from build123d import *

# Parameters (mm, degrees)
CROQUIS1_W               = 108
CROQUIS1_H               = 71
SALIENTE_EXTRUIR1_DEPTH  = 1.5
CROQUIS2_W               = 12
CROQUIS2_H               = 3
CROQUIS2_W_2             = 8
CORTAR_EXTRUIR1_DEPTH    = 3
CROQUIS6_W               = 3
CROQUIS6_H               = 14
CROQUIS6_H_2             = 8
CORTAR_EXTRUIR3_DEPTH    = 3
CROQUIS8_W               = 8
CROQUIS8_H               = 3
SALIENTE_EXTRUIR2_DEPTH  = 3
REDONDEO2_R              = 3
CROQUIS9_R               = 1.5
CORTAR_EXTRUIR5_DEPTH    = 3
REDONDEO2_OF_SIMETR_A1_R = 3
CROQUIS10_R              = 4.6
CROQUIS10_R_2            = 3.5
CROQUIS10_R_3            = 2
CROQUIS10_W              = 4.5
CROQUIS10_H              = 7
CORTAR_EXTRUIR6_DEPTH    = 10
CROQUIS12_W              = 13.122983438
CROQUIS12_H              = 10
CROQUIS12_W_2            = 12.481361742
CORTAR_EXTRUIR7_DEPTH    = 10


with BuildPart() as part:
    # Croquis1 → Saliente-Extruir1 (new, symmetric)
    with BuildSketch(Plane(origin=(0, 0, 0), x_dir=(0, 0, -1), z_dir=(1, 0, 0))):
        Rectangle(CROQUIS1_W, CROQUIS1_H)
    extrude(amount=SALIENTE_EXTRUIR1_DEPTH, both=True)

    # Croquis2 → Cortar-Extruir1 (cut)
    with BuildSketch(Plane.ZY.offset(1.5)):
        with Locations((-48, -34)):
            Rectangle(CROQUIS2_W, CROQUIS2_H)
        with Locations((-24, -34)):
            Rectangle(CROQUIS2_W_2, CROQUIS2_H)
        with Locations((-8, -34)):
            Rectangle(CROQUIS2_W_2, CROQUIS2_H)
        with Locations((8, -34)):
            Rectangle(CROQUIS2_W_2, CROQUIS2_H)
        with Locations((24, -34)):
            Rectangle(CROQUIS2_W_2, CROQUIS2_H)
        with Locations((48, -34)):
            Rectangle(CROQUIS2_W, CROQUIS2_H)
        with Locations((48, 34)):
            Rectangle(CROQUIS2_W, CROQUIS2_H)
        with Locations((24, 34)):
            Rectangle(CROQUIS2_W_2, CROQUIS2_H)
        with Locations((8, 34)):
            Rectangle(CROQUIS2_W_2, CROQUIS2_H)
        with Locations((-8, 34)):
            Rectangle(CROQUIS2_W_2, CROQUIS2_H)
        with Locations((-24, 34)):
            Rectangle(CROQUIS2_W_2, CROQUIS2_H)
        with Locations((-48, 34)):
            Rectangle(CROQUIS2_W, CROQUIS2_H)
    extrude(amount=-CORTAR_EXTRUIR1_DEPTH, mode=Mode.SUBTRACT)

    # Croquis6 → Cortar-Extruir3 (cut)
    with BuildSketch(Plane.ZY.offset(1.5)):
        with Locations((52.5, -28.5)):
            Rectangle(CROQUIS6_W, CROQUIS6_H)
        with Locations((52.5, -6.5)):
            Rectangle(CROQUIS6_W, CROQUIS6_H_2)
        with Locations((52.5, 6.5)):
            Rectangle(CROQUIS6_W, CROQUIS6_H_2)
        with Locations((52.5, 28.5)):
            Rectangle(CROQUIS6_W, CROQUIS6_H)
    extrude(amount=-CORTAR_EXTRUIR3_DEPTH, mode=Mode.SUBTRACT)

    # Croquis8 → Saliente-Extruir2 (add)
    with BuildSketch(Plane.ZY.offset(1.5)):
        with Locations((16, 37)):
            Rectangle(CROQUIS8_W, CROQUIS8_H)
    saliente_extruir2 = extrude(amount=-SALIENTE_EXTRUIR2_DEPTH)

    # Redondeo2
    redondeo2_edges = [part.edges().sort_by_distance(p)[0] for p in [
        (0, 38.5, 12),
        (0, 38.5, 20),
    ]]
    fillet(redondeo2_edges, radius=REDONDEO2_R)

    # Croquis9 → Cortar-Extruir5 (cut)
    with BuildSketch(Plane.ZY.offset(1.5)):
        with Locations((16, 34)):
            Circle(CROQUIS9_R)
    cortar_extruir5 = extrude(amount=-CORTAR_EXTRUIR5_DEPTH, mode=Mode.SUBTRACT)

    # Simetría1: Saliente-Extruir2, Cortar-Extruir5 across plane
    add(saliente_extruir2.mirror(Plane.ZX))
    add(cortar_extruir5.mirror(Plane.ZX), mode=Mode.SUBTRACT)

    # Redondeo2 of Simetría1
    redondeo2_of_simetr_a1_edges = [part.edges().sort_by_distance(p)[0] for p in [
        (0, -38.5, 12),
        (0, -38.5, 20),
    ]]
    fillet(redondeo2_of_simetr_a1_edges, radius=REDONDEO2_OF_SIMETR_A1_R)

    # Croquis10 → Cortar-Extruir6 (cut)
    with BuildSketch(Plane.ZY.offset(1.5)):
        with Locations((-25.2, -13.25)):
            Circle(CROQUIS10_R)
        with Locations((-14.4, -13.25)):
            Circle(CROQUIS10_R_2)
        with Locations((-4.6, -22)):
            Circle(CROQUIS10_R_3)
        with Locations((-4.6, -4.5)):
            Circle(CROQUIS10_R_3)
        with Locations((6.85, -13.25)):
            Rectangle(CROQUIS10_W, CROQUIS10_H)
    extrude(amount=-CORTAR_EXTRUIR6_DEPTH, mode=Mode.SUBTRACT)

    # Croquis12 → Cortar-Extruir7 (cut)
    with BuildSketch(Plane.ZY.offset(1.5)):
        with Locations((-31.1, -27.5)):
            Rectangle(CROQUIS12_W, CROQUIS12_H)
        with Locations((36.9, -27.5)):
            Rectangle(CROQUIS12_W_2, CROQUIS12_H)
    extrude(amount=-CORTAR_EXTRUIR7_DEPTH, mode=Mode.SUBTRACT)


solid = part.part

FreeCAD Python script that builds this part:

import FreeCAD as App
import Part
import Sketcher
from FreeCAD import Vector


def edges_at(feature, points):
    """Names of the edges that pass closest to the given points."""
    edges = feature.Shape.Edges
    near = lambda p: min(range(len(edges)), key=lambda i: edges[i].distToShape(Part.Vertex(*p))[0])
    return sorted({f"Edge{near(p) + 1}" for p in points})


def add_polygon(sketch, points):
    """Adds a closed chain of lines whose ends are joined by coincident constraints."""
    first, n = sketch.GeometryCount, len(points)
    for a, b in zip(points, points[1:] + points[:1]):
        sketch.addGeometry(Part.LineSegment(App.Vector(*a, 0), App.Vector(*b, 0)), False)
    for i in range(n):
        sketch.addConstraint(Sketcher.Constraint("Coincident", first + i, 2, first + (i + 1) % n, 1))

doc = App.newDocument("Part")
body = doc.addObject("PartDesign::Body", "Body")

sketch1 = doc.addObject("Sketcher::SketchObject", "Sketch")
body.addObject(sketch1)
sketch1.AttachmentSupport = (doc.YZ_Plane, [""])
sketch1.MapMode = "FlatFace"
add_polygon(sketch1, [(36, 54), (-36, 54), (-36, -54), (36, -54)])
sketch1.addConstraint([
    Sketcher.Constraint("Horizontal", 0),
    Sketcher.Constraint("Vertical", 1),
    Sketcher.Constraint("Horizontal", 2),
    Sketcher.Constraint("Vertical", 3),
    Sketcher.Constraint("Symmetric", 0, 2, 2, 2, -1, 1),
    Sketcher.Constraint("DistanceX", 0, 2, 0, 1, 71.0),
    Sketcher.Constraint("DistanceY", 1, 2, 1, 1, 108.0),
])
pad1 = doc.addObject("PartDesign::Pad", "Pad")
body.addObject(pad1)
pad1.Profile = sketch1
pad1.Length = 3
pad1.Midplane = True

sketch2 = doc.addObject("Sketcher::SketchObject", "Sketch001")
body.addObject(sketch2)
sketch2.AttachmentSupport = (doc.YZ_Plane, [""])
sketch2.MapMode = "FlatFace"
sketch2.AttachmentOffset = App.Placement(Vector(0, 0, -1.5), App.Rotation())
add_polygon(sketch2, [(-32.5, -54), (-35.5, -54), (-35.5, -42), (-32.5, -42)])
add_polygon(sketch2, [(-32.5, -28), (-35.5, -28), (-35.5, -20), (-32.5, -20)])
add_polygon(sketch2, [(-32.5, -12), (-35.5, -12), (-35.5, -4), (-32.5, -4)])
add_polygon(sketch2, [(-32.5, 4), (-35.5, 4), (-35.5, 12), (-32.5, 12)])
add_polygon(sketch2, [(-32.5, 20), (-35.5, 20), (-35.5, 28), (-32.5, 28)])
add_polygon(sketch2, [(-32.5, 42), (-35.5, 42), (-35.5, 54), (-32.5, 54)])
add_polygon(sketch2, [(35.5, 42), (32.5, 42), (32.5, 54), (35.5, 54)])
add_polygon(sketch2, [(35.5, 20), (32.5, 20), (32.5, 28), (35.5, 28)])
add_polygon(sketch2, [(35.5, 4), (32.5, 4), (32.5, 12), (35.5, 12)])
add_polygon(sketch2, [(35.5, -12), (32.5, -12), (32.5, -4), (35.5, -4)])
add_polygon(sketch2, [(35.5, -28), (32.5, -28), (32.5, -20), (35.5, -20)])
add_polygon(sketch2, [(35.5, -54), (32.5, -54), (32.5, -42), (35.5, -42)])
sketch2.addConstraint([
    Sketcher.Constraint("Horizontal", 0),
    Sketcher.Constraint("Vertical", 1),
    Sketcher.Constraint("Horizontal", 2),
    Sketcher.Constraint("Vertical", 3),
    Sketcher.Constraint("Horizontal", 4),
    Sketcher.Constraint("Vertical", 5),
    Sketcher.Constraint("Horizontal", 6),
    Sketcher.Constraint("Vertical", 7),
    Sketcher.Constraint("Horizontal", 8),
    Sketcher.Constraint("Vertical", 9),
    Sketcher.Constraint("Horizontal", 10),
    Sketcher.Constraint("Vertical", 11),
    Sketcher.Constraint("Horizontal", 12),
    Sketcher.Constraint("Vertical", 13),
    Sketcher.Constraint("Horizontal", 14),
    Sketcher.Constraint("Vertical", 15),
    Sketcher.Constraint("Horizontal", 16),
    Sketcher.Constraint("Vertical", 17),
    Sketcher.Constraint("Horizontal", 18),
    Sketcher.Constraint("Vertical", 19),
    Sketcher.Constraint("Horizontal", 20),
    Sketcher.Constraint("Vertical", 21),
    Sketcher.Constraint("Horizontal", 22),
    Sketcher.Constraint("Vertical", 23),
    Sketcher.Constraint("Horizontal", 24),
    Sketcher.Constraint("Vertical", 25),
    Sketcher.Constraint("Horizontal", 26),
    Sketcher.Constraint("Vertical", 27),
    Sketcher.Constraint("Horizontal", 28),
    Sketcher.Constraint("Vertical", 29),
    Sketcher.Constraint("Horizontal", 30),
    Sketcher.Constraint("Vertical", 31),
    Sketcher.Constraint("Horizontal", 32),
    Sketcher.Constraint("Vertical", 33),
    Sketcher.Constraint("Horizontal", 34),
    Sketcher.Constraint("Vertical", 35),
    Sketcher.Constraint("Horizontal", 36),
    Sketcher.Constraint("Vertical", 37),
    Sketcher.Constraint("Horizontal", 38),
    Sketcher.Constraint("Vertical", 39),
    Sketcher.Constraint("Horizontal", 40),
    Sketcher.Constraint("Vertical", 41),
    Sketcher.Constraint("Horizontal", 42),
    Sketcher.Constraint("Vertical", 43),
    Sketcher.Constraint("Horizontal", 44),
    Sketcher.Constraint("Vertical", 45),
    Sketcher.Constraint("Horizontal", 46),
    Sketcher.Constraint("Vertical", 47),
    Sketcher.Constraint("Symmetric", 2, 2, 24, 2, -1, 1),
    Sketcher.Constraint("Symmetric", 0, 2, 26, 2, -1, 1),
    Sketcher.Constraint("Symmetric", 6, 2, 28, 2, -1, 1),
    Sketcher.Constraint("Symmetric", 4, 2, 30, 2, -1, 1),
    Sketcher.Constraint("Symmetric", 10, 2, 32, 2, -1, 1),
    Sketcher.Constraint("Symmetric", 8, 2, 34, 2, -1, 1),
    Sketcher.Constraint("Symmetric", 14, 2, 36, 2, -1, 1),
    Sketcher.Constraint("Symmetric", 12, 2, 38, 2, -1, 1),
    Sketcher.Constraint("Symmetric", 18, 2, 40, 2, -1, 1),
    Sketcher.Constraint("Symmetric", 16, 2, 42, 2, -1, 1),
    Sketcher.Constraint("Symmetric", 22, 2, 44, 2, -1, 1),
    Sketcher.Constraint("Symmetric", 20, 2, 46, 2, -1, 1),
    Sketcher.Constraint("Symmetric", 23, 2, 24, 2, -2),
    Sketcher.Constraint("Symmetric", 21, 2, 26, 2, -2),
    Sketcher.Constraint("Symmetric", 19, 2, 28, 2, -2),
    Sketcher.Constraint("Symmetric", 17, 2, 30, 2, -2),
    Sketcher.Constraint("Symmetric", 15, 2, 32, 2, -2),
    Sketcher.Constraint("Symmetric", 13, 2, 34, 2, -2),
    Sketcher.Constraint("Vertical", 1, 2, 4, 2),
    Sketcher.Constraint("Vertical", 3, 2, 6, 2),
    Sketcher.Constraint("Vertical", 5, 2, 8, 2),
    Sketcher.Constraint("Vertical", 7, 2, 10, 2),
    Sketcher.Constraint("Equal", 7, 9),
    Sketcher.Constraint("DistanceX", 0, 2, 0, 1, 3.0),
    Sketcher.Constraint("DistanceY", 1, 1, 1, 2, 12.0),
    Sketcher.Constraint("DistanceY", 5, 1, 5, 2, 8.0),
    Sketcher.Constraint("DistanceY", 0, 2, -1, 1, 54.0),
    Sketcher.Constraint("DistanceY", 4, 2, -1, 1, 28.0),
    Sketcher.Constraint("DistanceY", 8, 2, -1, 1, 12.0),
    Sketcher.Constraint("DistanceX", 23, 2, 24, 2, 65.0),
])
pocket1 = doc.addObject("PartDesign::Pocket", "Pocket")
body.addObject(pocket1)
pocket1.Profile = sketch2
pocket1.Length = 3
pocket1.Reversed = True

sketch3 = doc.addObject("Sketcher::SketchObject", "Sketch002")
body.addObject(sketch3)
sketch3.AttachmentSupport = (doc.YZ_Plane, [""])
sketch3.MapMode = "FlatFace"
sketch3.AttachmentOffset = App.Placement(Vector(0, 0, -1.5), App.Rotation())
add_polygon(sketch3, [(-21.5, 51), (-35.5, 51), (-35.5, 54), (-21.5, 54)])
add_polygon(sketch3, [(-2.5, 51), (-10.5, 51), (-10.5, 54), (-2.5, 54)])
add_polygon(sketch3, [(10.5, 51), (2.5, 51), (2.5, 54), (10.5, 54)])
add_polygon(sketch3, [(35.5, 51), (21.5, 51), (21.5, 54), (35.5, 54)])
sketch3.addConstraint([
    Sketcher.Constraint("Horizontal", 0),
    Sketcher.Constraint("Vertical", 1),
    Sketcher.Constraint("Horizontal", 2),
    Sketcher.Constraint("Vertical", 3),
    Sketcher.Constraint("Horizontal", 4),
    Sketcher.Constraint("Vertical", 5),
    Sketcher.Constraint("Horizontal", 6),
    Sketcher.Constraint("Vertical", 7),
    Sketcher.Constraint("Horizontal", 8),
    Sketcher.Constraint("Vertical", 9),
    Sketcher.Constraint("Horizontal", 10),
    Sketcher.Constraint("Vertical", 11),
    Sketcher.Constraint("Horizontal", 12),
    Sketcher.Constraint("Vertical", 13),
    Sketcher.Constraint("Horizontal", 14),
    Sketcher.Constraint("Vertical", 15),
    Sketcher.Constraint("Symmetric", 7, 2, 8, 2, -2),
    Sketcher.Constraint("Symmetric", 5, 2, 10, 2, -2),
    Sketcher.Constraint("Symmetric", 3, 2, 12, 2, -2),
    Sketcher.Constraint("Symmetric", 1, 2, 14, 2, -2),
    Sketcher.Constraint("Horizontal", 3, 2, 4, 2),
    Sketcher.Constraint("Horizontal", 2, 2, 5, 2),
    Sketcher.Constraint("DistanceX", 0, 2, 0, 1, 14.0),
    Sketcher.Constraint("DistanceX", 4, 2, 4, 1, 8.0),
    Sketcher.Constraint("DistanceY", 1, 1, 1, 2, 3.0),
    Sketcher.Constraint("DistanceY", -1, 1, 0, 2, 51.0),
    Sketcher.Constraint("DistanceX", 3, 2, 4, 2, 11.0),
    Sketcher.Constraint("DistanceX", 7, 2, 8, 2, 5.0),
])
pocket2 = doc.addObject("PartDesign::Pocket", "Pocket001")
body.addObject(pocket2)
pocket2.Profile = sketch3
pocket2.Length = 3
pocket2.Reversed = True

sketch4 = doc.addObject("Sketcher::SketchObject", "Sketch003")
body.addObject(sketch4)
sketch4.AttachmentSupport = (doc.YZ_Plane, [""])
sketch4.MapMode = "FlatFace"
sketch4.AttachmentOffset = App.Placement(Vector(0, 0, -1.5), App.Rotation())
add_polygon(sketch4, [(38.5, 12), (35.5, 12), (35.5, 20), (38.5, 20)])
sketch4.addConstraint([
    Sketcher.Constraint("Horizontal", 0),
    Sketcher.Constraint("Vertical", 1),
    Sketcher.Constraint("Horizontal", 2),
    Sketcher.Constraint("Vertical", 3),
    Sketcher.Constraint("DistanceX", 0, 2, 0, 1, 3.0),
    Sketcher.Constraint("DistanceY", 1, 1, 1, 2, 8.0),
    Sketcher.Constraint("DistanceY", -1, 1, 0, 2, 12.0),
    Sketcher.Constraint("DistanceX", -1, 1, 0, 2, 35.5),
])
pad2 = doc.addObject("PartDesign::Pad", "Pad001")
body.addObject(pad2)
pad2.Profile = sketch4
pad2.Length = 3
doc.recompute()

fillet = doc.addObject("PartDesign::Fillet", "Fillet")
body.addObject(fillet)
fillet.Base = (pad2, edges_at(pad2, [(0, 38.5, 12), (0, 38.5, 20)]))
fillet.Radius = 3

sketch5 = doc.addObject("Sketcher::SketchObject", "Sketch004")
body.addObject(sketch5)
sketch5.AttachmentSupport = (doc.YZ_Plane, [""])
sketch5.MapMode = "FlatFace"
sketch5.AttachmentOffset = App.Placement(Vector(0, 0, -1.5), App.Rotation())
sketch5.addGeometry(Part.Circle(Vector(34, 16, 0), Vector(0, 0, 1), 1.5), False)
sketch5.addConstraint([
    Sketcher.Constraint("Diameter", 0, 3.0),
    Sketcher.Constraint("DistanceX", -1, 1, 0, 3, 34.0),
    Sketcher.Constraint("DistanceY", -1, 1, 0, 3, 16.0),
])
pocket3 = doc.addObject("PartDesign::Pocket", "Pocket002")
body.addObject(pocket3)
pocket3.Profile = sketch5
pocket3.Length = 3
pocket3.Reversed = True
doc.recompute()

mirrored = doc.addObject("PartDesign::Mirrored", "Mirrored")
body.addObject(mirrored)
mirrored.Originals = [pad2, pocket3]
mirrored.MirrorPlane = (doc.XZ_Plane, [""])
body.Tip = mirrored
doc.recompute()

fillet2 = doc.addObject("PartDesign::Fillet", "Fillet001")
body.addObject(fillet2)
fillet2.Base = (mirrored, edges_at(mirrored, [(0, -38.5, 12), (0, -38.5, 20)]))
fillet2.Radius = 3

sketch6 = doc.addObject("Sketcher::SketchObject", "Sketch005")
body.addObject(sketch6)
sketch6.AttachmentSupport = (doc.YZ_Plane, [""])
sketch6.MapMode = "FlatFace"
sketch6.AttachmentOffset = App.Placement(Vector(0, 0, -1.5), App.Rotation())
sketch6.addGeometry(Part.Circle(Vector(-13.2, -25.2, 0), Vector(0, 0, 1), 4.6), False)
sketch6.addGeometry(Part.Circle(Vector(-13.2, -14.4, 0), Vector(0, 0, 1), 3.5), False)
sketch6.addGeometry(Part.Circle(Vector(-22, -4.6, 0), Vector(0, 0, 1), 2), False)
sketch6.addGeometry(Part.Circle(Vector(-4.5, -4.6, 0), Vector(0, 0, 1), 2), False)
add_polygon(sketch6, [(-9.8, 4.6), (-16.8, 4.6), (-16.8, 9.1), (-9.8, 9.1)])
sketch6.addConstraint([
    Sketcher.Constraint("Horizontal", 4),
    Sketcher.Constraint("Vertical", 5),
    Sketcher.Constraint("Horizontal", 6),
    Sketcher.Constraint("Vertical", 7),
    Sketcher.Constraint("Equal", 2, 3),
    Sketcher.Constraint("Horizontal", 2, 3, 3, 3),
    Sketcher.Constraint("Vertical", 0, 3, 1, 3),
    Sketcher.Constraint("Diameter", 1, 7.0),
    Sketcher.Constraint("Diameter", 2, 4.0),
    Sketcher.Constraint("Diameter", 0, 9.2),
    Sketcher.Constraint("DistanceX", 4, 2, 4, 1, 7.0),
    Sketcher.Constraint("DistanceY", 5, 1, 5, 2, 4.5),
    Sketcher.Constraint("DistanceX", 2, 3, -1, 1, 22.0),
    Sketcher.Constraint("DistanceY", 1, 3, 4, 2, 19.0),
    Sketcher.Constraint("DistanceY", 0, 3, -1, 1, 25.2),
    Sketcher.Constraint("DistanceY", 1, 3, -1, 1, 14.4),
    Sketcher.Constraint("DistanceY", 2, 3, -1, 1, 4.6),
    Sketcher.Constraint("DistanceX", 3, 3, -1, 1, 4.5),
    Sketcher.Constraint("DistanceX", 4, 2, 1, 3, 3.5),
    Sketcher.Constraint("DistanceX", 0, 3, -1, 1, 13.25),
])
pocket4 = doc.addObject("PartDesign::Pocket", "Pocket003")
body.addObject(pocket4)
pocket4.Profile = sketch6
pocket4.Length = 10
pocket4.Reversed = True

sketch7 = doc.addObject("Sketcher::SketchObject", "Sketch006")
body.addObject(sketch7)
sketch7.AttachmentSupport = (doc.YZ_Plane, [""])
sketch7.MapMode = "FlatFace"
sketch7.AttachmentOffset = App.Placement(Vector(0, 0, -1.5), App.Rotation())
add_polygon(sketch7, [(-22, -38), (-32, -38), (-32, -25), (-22, -25)])
add_polygon(sketch7, [(-22, 31), (-32, 31), (-32, 43), (-22, 43)])
sketch7.addConstraint([
    Sketcher.Constraint("Horizontal", 0),
    Sketcher.Constraint("Vertical", 1),
    Sketcher.Constraint("Horizontal", 2),
    Sketcher.Constraint("Vertical", 3),
    Sketcher.Constraint("Horizontal", 4),
    Sketcher.Constraint("Vertical", 5),
    Sketcher.Constraint("Horizontal", 6),
    Sketcher.Constraint("Vertical", 7),
    Sketcher.Constraint("Vertical", 1, 2, 4, 2),
    Sketcher.Constraint("Vertical", 3, 2, 6, 2),
    Sketcher.Constraint("DistanceX", 0, 2, 0, 1, 10.0),
    Sketcher.Constraint("DistanceX", 0, 2, -1, 1, 32.5),
    Sketcher.Constraint("DistanceY", 5, 1, 5, 2, 12.481362),
    Sketcher.Constraint("DistanceY", 1, 1, 1, 2, 13.122983),
    Sketcher.Constraint("DistanceY", 0, 2, -1, 1, 37.661492),
    Sketcher.Constraint("DistanceY", -1, 1, 4, 2, 30.659319),
])
pocket5 = doc.addObject("PartDesign::Pocket", "Pocket004")
body.addObject(pocket5)
pocket5.Profile = sketch7
pocket5.Length = 10
pocket5.Reversed = True

doc.recompute()
